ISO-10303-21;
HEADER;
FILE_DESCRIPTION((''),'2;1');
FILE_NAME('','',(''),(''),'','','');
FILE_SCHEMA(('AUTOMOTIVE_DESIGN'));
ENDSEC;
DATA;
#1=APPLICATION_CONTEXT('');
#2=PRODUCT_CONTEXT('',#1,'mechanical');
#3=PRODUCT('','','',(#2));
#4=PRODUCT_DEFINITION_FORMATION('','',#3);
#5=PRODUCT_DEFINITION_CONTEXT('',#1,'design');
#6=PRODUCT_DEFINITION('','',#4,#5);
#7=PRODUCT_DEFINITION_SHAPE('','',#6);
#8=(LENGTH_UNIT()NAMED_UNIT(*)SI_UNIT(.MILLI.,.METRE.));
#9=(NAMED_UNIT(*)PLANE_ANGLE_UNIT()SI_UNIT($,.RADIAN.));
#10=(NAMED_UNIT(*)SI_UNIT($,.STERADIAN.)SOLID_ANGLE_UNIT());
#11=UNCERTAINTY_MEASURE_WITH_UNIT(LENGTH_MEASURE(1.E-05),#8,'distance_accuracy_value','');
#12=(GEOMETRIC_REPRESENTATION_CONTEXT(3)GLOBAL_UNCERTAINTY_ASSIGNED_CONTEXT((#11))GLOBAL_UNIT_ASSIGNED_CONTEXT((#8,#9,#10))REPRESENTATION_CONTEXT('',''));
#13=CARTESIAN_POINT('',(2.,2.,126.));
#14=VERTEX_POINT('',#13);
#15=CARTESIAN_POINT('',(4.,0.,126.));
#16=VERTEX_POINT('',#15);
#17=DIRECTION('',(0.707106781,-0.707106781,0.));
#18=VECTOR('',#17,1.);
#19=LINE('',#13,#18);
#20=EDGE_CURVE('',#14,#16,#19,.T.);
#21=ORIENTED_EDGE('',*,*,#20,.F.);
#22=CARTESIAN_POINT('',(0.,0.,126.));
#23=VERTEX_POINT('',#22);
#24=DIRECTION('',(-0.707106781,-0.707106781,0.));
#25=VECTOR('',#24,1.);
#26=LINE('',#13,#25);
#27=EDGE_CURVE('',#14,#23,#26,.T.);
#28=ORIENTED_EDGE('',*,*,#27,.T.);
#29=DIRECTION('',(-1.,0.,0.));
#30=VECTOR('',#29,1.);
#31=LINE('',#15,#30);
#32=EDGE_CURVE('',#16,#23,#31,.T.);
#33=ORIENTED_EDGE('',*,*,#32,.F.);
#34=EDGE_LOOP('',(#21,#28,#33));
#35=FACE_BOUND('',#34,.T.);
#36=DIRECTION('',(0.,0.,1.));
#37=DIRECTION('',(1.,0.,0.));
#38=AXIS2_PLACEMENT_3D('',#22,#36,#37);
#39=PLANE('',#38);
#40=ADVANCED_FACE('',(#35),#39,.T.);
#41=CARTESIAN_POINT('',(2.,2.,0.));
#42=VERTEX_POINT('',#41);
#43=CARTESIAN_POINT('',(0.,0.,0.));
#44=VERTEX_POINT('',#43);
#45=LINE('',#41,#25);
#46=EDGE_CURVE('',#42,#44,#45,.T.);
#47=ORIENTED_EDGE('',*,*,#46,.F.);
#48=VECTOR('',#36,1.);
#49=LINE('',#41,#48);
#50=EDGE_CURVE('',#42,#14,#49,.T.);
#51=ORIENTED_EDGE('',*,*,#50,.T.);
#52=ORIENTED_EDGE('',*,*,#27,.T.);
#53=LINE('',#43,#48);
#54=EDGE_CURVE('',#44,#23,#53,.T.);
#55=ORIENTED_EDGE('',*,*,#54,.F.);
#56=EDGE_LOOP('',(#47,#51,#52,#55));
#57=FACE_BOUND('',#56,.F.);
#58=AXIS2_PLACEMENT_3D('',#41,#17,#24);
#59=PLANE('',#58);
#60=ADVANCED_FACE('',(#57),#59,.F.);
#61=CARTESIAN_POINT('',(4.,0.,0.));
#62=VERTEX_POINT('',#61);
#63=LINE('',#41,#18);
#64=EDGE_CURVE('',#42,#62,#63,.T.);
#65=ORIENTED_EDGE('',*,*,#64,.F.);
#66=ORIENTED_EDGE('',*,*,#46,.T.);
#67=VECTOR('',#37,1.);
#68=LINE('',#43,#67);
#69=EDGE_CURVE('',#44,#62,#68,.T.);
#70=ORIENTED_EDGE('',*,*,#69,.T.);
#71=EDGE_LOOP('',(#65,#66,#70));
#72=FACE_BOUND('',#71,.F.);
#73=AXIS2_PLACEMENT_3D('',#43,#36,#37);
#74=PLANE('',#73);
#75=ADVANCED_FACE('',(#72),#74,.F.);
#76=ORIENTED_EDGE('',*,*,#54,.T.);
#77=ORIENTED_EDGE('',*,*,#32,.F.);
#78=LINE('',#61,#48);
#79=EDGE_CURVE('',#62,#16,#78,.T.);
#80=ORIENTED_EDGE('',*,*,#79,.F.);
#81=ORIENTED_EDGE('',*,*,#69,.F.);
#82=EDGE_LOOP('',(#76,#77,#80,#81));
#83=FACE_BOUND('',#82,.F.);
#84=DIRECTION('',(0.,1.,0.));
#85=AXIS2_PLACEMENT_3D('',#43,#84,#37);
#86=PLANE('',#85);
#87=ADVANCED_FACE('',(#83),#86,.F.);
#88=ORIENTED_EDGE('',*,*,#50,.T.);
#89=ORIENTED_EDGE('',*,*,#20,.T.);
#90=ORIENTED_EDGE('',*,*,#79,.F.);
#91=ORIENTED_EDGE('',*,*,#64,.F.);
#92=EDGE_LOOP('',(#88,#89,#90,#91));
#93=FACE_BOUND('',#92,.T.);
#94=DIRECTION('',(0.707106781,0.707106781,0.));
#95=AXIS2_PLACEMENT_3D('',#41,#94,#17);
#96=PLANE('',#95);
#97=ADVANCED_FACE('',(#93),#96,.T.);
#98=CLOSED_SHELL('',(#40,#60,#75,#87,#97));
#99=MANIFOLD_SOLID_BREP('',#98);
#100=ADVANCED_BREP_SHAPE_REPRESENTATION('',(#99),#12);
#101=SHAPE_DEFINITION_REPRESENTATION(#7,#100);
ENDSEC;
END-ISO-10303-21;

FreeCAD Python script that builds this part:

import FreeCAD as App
import Part
import Sketcher
from FreeCAD import Vector
Q = App.Units.Quantity


def add_polygon(sketch, points):
    """Adds a closed chain of lines whose ends are joined by coincident constraints."""
    first, n = sketch.GeometryCount, len(points)
    for a, b in zip(points, points[1:] + points[:1]):
        sketch.addGeometry(Part.LineSegment(App.Vector(*a, 0), App.Vector(*b, 0)), False)
    for i in range(n):
        sketch.addConstraint(Sketcher.Constraint("Coincident", first + i, 2, first + (i + 1) % n, 1))

doc = App.newDocument("Part")
body = doc.addObject("PartDesign::Body", "Body")

sketch1 = body.newObject("Sketcher::SketchObject", "Sketch")
sketch1.AttachmentSupport = (doc.getObject("XY_Plane"), [""])
sketch1.MapMode = "FlatFace"
add_polygon(sketch1, [(2, 2), (0, 0), (4, 0)])
sketch1.addConstraint([
    Sketcher.Constraint("Horizontal", 1),
    Sketcher.Constraint("Coincident", 0, 2, -1, 1),
    Sketcher.Constraint("Perpendicular", 0, 2),
    Sketcher.Constraint("Equal", 0, 2),
    Sketcher.Constraint("DistanceX", -1, 1, 2, 2, Q("2 mm")),
])
pad1 = body.newObject("PartDesign::Pad", "Pad")
pad1.Profile = sketch1
pad1.Length = 126

doc.recompute()
